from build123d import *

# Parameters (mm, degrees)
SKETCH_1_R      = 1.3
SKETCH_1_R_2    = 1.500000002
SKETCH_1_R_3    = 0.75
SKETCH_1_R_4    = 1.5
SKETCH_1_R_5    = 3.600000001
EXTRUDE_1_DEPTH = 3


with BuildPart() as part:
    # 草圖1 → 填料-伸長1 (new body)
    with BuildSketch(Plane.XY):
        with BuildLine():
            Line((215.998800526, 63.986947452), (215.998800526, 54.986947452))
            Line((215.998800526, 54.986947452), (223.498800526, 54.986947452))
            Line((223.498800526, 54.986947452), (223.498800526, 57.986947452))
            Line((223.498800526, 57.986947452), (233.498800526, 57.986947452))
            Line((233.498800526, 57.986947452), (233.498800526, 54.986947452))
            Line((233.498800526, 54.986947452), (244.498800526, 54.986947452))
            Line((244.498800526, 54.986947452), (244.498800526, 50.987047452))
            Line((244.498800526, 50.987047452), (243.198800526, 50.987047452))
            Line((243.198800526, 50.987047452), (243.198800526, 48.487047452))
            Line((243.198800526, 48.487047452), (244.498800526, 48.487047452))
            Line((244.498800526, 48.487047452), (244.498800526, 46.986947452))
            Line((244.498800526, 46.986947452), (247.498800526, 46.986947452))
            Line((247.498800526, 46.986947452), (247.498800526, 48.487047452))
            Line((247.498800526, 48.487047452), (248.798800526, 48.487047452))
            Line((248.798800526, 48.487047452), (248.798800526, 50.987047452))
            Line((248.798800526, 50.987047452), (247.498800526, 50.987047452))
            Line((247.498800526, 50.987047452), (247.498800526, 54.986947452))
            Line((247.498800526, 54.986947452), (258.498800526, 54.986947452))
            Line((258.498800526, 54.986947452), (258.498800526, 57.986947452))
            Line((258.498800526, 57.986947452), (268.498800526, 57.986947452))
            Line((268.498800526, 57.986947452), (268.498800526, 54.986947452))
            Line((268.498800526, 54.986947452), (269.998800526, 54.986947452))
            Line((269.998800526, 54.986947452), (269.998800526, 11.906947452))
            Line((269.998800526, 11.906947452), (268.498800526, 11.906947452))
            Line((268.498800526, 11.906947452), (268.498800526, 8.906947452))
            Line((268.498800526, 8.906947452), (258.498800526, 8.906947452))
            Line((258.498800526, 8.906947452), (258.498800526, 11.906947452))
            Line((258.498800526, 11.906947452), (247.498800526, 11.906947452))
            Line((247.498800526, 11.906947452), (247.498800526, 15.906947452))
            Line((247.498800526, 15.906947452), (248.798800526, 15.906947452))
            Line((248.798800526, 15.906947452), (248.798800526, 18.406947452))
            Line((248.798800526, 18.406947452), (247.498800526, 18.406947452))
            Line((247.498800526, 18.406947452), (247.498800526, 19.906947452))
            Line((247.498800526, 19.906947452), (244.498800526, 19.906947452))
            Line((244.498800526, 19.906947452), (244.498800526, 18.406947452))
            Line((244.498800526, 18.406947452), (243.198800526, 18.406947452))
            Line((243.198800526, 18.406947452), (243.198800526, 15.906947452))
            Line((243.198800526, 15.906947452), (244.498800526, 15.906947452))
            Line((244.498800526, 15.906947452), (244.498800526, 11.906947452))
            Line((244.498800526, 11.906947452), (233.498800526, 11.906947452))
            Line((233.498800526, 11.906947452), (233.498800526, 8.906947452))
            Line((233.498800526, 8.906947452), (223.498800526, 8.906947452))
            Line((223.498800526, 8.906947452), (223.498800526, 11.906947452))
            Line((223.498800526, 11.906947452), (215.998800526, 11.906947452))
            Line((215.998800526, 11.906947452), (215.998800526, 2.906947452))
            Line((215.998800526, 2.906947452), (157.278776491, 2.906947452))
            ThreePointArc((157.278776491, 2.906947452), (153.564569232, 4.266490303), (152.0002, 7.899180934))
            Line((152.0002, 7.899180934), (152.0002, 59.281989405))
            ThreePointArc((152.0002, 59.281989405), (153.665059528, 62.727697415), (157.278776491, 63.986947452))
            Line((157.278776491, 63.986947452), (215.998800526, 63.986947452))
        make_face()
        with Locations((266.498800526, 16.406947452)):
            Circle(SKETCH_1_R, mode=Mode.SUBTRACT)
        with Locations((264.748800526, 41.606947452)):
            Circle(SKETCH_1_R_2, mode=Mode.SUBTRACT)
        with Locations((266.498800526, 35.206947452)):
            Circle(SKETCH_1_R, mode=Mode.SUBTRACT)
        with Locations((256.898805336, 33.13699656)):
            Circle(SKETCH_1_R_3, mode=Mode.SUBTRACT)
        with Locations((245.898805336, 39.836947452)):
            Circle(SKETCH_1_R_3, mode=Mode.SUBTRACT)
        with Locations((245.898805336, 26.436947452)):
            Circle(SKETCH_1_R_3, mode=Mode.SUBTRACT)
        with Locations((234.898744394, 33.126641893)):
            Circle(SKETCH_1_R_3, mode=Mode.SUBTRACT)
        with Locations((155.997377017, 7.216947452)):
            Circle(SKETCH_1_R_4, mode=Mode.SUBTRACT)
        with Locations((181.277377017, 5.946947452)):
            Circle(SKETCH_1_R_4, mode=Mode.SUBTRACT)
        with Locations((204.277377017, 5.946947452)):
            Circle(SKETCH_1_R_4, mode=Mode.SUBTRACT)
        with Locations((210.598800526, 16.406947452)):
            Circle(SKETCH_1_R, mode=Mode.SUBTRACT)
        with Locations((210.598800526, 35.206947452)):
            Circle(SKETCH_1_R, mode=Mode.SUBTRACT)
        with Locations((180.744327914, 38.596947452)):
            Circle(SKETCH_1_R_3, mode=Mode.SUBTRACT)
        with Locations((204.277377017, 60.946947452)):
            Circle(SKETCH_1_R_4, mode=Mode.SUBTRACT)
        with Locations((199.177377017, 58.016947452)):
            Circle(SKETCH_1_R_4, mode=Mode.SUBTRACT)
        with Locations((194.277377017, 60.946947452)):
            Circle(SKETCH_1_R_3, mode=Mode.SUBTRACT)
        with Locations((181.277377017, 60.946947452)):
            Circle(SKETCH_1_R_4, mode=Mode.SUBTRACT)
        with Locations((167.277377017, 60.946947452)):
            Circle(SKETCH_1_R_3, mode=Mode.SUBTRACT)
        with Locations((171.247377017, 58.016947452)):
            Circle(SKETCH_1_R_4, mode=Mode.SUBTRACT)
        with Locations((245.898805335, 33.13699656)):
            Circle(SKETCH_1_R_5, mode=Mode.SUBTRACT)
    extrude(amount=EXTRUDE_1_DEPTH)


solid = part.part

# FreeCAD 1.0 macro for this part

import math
import FreeCAD as App
import Part
import Sketcher
from FreeCAD import Vector
Q = App.Units.Quantity

doc = App.newDocument("Part")
params = doc.addObject("Spreadsheet::Sheet", "Params")
for row, (alias, value) in enumerate([
    ("sketch1_diameter", "3 mm"),
    ("sketch1_radius", "5 mm"),
    ("sketch1_diameter2", "2.6 mm"),
    ("sketch1_diameter3", "1.5 mm"),
    ("sketch1_diameter4", "7.2 mm"),
    ("pad1_length", "3 mm"),
], start=1):
    params.set(f"A{row}", alias)
    params.set(f"B{row}", "=" + value)
    params.setAlias(f"B{row}", alias)

body = doc.addObject("PartDesign::Body", "Body")

sketch1 = body.newObject("Sketcher::SketchObject", "Sketch")
sketch1.AttachmentSupport = (doc.getObject("XY_Plane"), [""])
sketch1.MapMode = "FlatFace"
sketch1.addGeometry(Part.LineSegment(Vector(216, 55, 0), Vector(216, 64, 0)), False)
sketch1.addGeometry(Part.LineSegment(Vector(216, 64, 0), Vector(157.3, 64, 0)), False)
sketch1.addGeometry(Part.ArcOfCircle(Part.Circle(Vector(157, 59, 0), Vector(0, 0, 1), 5), math.radians(87), math.radians(177)), False)
sketch1.addGeometry(Part.LineSegment(Vector(152, 59.3, 0), Vector(152, 7.9, 0)), False)
sketch1.addGeometry(Part.ArcOfCircle(Part.Circle(Vector(157, 7.9, 0), Vector(0, 0, 1), 5), math.radians(-180), math.radians(-87)), False)
sketch1.addGeometry(Part.LineSegment(Vector(157.3, 2.9, 0), Vector(216, 2.9, 0)), False)
sketch1.addGeometry(Part.LineSegment(Vector(216, 2.9, 0), Vector(216, 11.9, 0)), False)
sketch1.addGeometry(Part.LineSegment(Vector(216, 11.9, 0), Vector(223.5, 11.9, 0)), False)
sketch1.addGeometry(Part.LineSegment(Vector(223.5, 11.9, 0), Vector(223.5, 8.9, 0)), False)
sketch1.addGeometry(Part.LineSegment(Vector(223.5, 8.9, 0), Vector(233.5, 8.9, 0)), False)
sketch1.addGeometry(Part.LineSegment(Vector(233.5, 8.9, 0), Vector(233.5, 11.9, 0)), False)
sketch1.addGeometry(Part.LineSegment(Vector(233.5, 11.9, 0), Vector(244.5, 11.9, 0)), False)
sketch1.addGeometry(Part.LineSegment(Vector(244.5, 11.9, 0), Vector(244.5, 15.9, 0)), False)
sketch1.addGeometry(Part.LineSegment(Vector(244.5, 15.9, 0), Vector(243.2, 15.9, 0)), False)
sketch1.addGeometry(Part.LineSegment(Vector(243.2, 15.9, 0), Vector(243.2, 18.4, 0)), False)
sketch1.addGeometry(Part.LineSegment(Vector(243.2, 18.4, 0), Vector(244.5, 18.4, 0)), False)
sketch1.addGeometry(Part.LineSegment(Vector(244.5, 18.4, 0), Vector(244.5, 19.9, 0)), False)
sketch1.addGeometry(Part.LineSegment(Vector(244.5, 19.9, 0), Vector(247.5, 19.9, 0)), False)
sketch1.addGeometry(Part.LineSegment(Vector(247.5, 19.9, 0), Vector(247.5, 18.4, 0)), False)
sketch1.addGeometry(Part.LineSegment(Vector(247.5, 18.4, 0), Vector(248.8, 18.4, 0)), False)
sketch1.addGeometry(Part.LineSegment(Vector(248.8, 18.4, 0), Vector(248.8, 15.9, 0)), False)
sketch1.addGeometry(Part.LineSegment(Vector(248.8, 15.9, 0), Vector(247.5, 15.9, 0)), False)
sketch1.addGeometry(Part.LineSegment(Vector(247.5, 15.9, 0), Vector(247.5, 11.9, 0)), False)
sketch1.addGeometry(Part.LineSegment(Vector(247.5, 11.9, 0), Vector(258.5, 11.9, 0)), False)
sketch1.addGeometry(Part.LineSegment(Vector(258.5, 11.9, 0), Vector(258.5, 8.9, 0)), False)
sketch1.addGeometry(Part.LineSegment(Vector(258.5, 8.9, 0), Vector(268.5, 8.9, 0)), False)
sketch1.addGeometry(Part.LineSegment(Vector(268.5, 8.9, 0), Vector(268.5, 11.9, 0)), False)
sketch1.addGeometry(Part.LineSegment(Vector(268.5, 11.9, 0), Vector(270, 11.9, 0)), False)
sketch1.addGeometry(Part.LineSegment(Vector(270, 11.9, 0), Vector(270, 55, 0)), False)
sketch1.addGeometry(Part.LineSegment(Vector(270, 55, 0), Vector(268.5, 55, 0)), False)
sketch1.addGeometry(Part.LineSegment(Vector(268.5, 55, 0), Vector(268.5, 58, 0)), False)
sketch1.addGeometry(Part.LineSegment(Vector(268.5, 58, 0), Vector(258.5, 58, 0)), False)
sketch1.addGeometry(Part.LineSegment(Vector(258.5, 58, 0), Vector(258.5, 55, 0)), False)
sketch1.addGeometry(Part.LineSegment(Vector(258.5, 55, 0), Vector(247.5, 55, 0)), False)
sketch1.addGeometry(Part.LineSegment(Vector(247.5, 55, 0), Vector(247.5, 51, 0)), False)
sketch1.addGeometry(Part.LineSegment(Vector(247.5, 51, 0), Vector(248.8, 51, 0)), False)
sketch1.addGeometry(Part.LineSegment(Vector(248.8, 51, 0), Vector(248.8, 48.5, 0)), False)
sketch1.addGeometry(Part.LineSegment(Vector(248.8, 48.5, 0), Vector(247.5, 48.5, 0)), False)
sketch1.addGeometry(Part.LineSegment(Vector(247.5, 48.5, 0), Vector(247.5, 47, 0)), False)
sketch1.addGeometry(Part.LineSegment(Vector(247.5, 47, 0), Vector(244.5, 47, 0)), False)
sketch1.addGeometry(Part.LineSegment(Vector(244.5, 47, 0), Vector(244.5, 48.5, 0)), False)
sketch1.addGeometry(Part.LineSegment(Vector(244.5, 48.5, 0), Vector(243.2, 48.5, 0)), False)
sketch1.addGeometry(Part.LineSegment(Vector(243.2, 48.5, 0), Vector(243.2, 51, 0)), False)
sketch1.addGeometry(Part.LineSegment(Vector(243.2, 51, 0), Vector(244.5, 51, 0)), False)
sketch1.addGeometry(Part.LineSegment(Vector(244.5, 51, 0), Vector(244.5, 55, 0)), False)
sketch1.addGeometry(Part.LineSegment(Vector(244.5, 55, 0), Vector(233.5, 55, 0)), False)
sketch1.addGeometry(Part.LineSegment(Vector(233.5, 55, 0), Vector(233.5, 58, 0)), False)
sketch1.addGeometry(Part.LineSegment(Vector(233.5, 58, 0), Vector(223.5, 58, 0)), False)
sketch1.addGeometry(Part.LineSegment(Vector(223.5, 58, 0), Vector(223.5, 55, 0)), False)
sketch1.addGeometry(Part.LineSegment(Vector(223.5, 55, 0), Vector(216, 55, 0)), False)
sketch1.addGeometry(Part.Circle(Vector(266.5, 16.4, 0), Vector(0, 0, 1), 1.3), False)
sketch1.addGeometry(Part.Circle(Vector(256.9, 33.1, 0), Vector(0, 0, 1), 0.8), False)
sketch1.addGeometry(Part.Circle(Vector(245.9, 26.4, 0), Vector(0, 0, 1), 0.8), False)
sketch1.addGeometry(Part.Circle(Vector(245.9, 33.1, 0), Vector(0, 0, 1), 3.6), False)
sketch1.addGeometry(Part.Circle(Vector(234.9, 33.1, 0), Vector(0, 0, 1), 0.8), False)
sketch1.addGeometry(Part.Circle(Vector(204.3, 5.9, 0), Vector(0, 0, 1), 1.5), False)
sketch1.addGeometry(Part.Circle(Vector(210.6, 16.4, 0), Vector(0, 0, 1), 1.3), False)
sketch1.addGeometry(Part.Circle(Vector(181.3, 5.9, 0), Vector(0, 0, 1), 1.5), False)
sketch1.addGeometry(Part.Circle(Vector(156, 7.2, 0), Vector(0, 0, 1), 1.5), False)
sketch1.addGeometry(Part.Circle(Vector(266.5, 35.2, 0), Vector(0, 0, 1), 1.3), False)
sketch1.addGeometry(Part.Circle(Vector(245.9, 39.8, 0), Vector(0, 0, 1), 0.8), False)
sketch1.addGeometry(Part.Circle(Vector(264.7, 41.6, 0), Vector(0, 0, 1), 1.5), False)
sketch1.addGeometry(Part.Circle(Vector(210.6, 35.2, 0), Vector(0, 0, 1), 1.3), False)
sketch1.addGeometry(Part.Circle(Vector(180.7, 38.6, 0), Vector(0, 0, 1), 0.8), False)
sketch1.addGeometry(Part.Circle(Vector(199.2, 58, 0), Vector(0, 0, 1), 1.5), False)
sketch1.addGeometry(Part.Circle(Vector(204.3, 60.9, 0), Vector(0, 0, 1), 1.5), False)
sketch1.addGeometry(Part.Circle(Vector(194.3, 60.9, 0), Vector(0, 0, 1), 0.8), False)
sketch1.addGeometry(Part.Circle(Vector(171.2, 58, 0), Vector(0, 0, 1), 1.5), False)
sketch1.addGeometry(Part.Circle(Vector(181.3, 60.9, 0), Vector(0, 0, 1), 1.5), False)
sketch1.addGeometry(Part.Circle(Vector(167.3, 60.9, 0), Vector(0, 0, 1), 0.8), False)
sketch1.addConstraint(Sketcher.Constraint("Coincident", 0, 2, 1, 1))
sketch1.addConstraint(Sketcher.Constraint("Coincident", 1, 2, 2, 1))
sketch1.addConstraint(Sketcher.Constraint("Coincident", 2, 2, 3, 1))
sketch1.addConstraint(Sketcher.Constraint("Tangent", 3, 2, 4, 1))
sketch1.addConstraint(Sketcher.Constraint("Coincident", 4, 2, 5, 1))
sketch1.addConstraint(Sketcher.Constraint("Coincident", 5, 2, 6, 1))
sketch1.addConstraint(Sketcher.Constraint("Coincident", 6, 2, 7, 1))
sketch1.addConstraint(Sketcher.Constraint("Coincident", 7, 2, 8, 1))
sketch1.addConstraint(Sketcher.Constraint("Coincident", 8, 2, 9, 1))
sketch1.addConstraint(Sketcher.Constraint("Coincident", 9, 2, 10, 1))
sketch1.addConstraint(Sketcher.Constraint("Coincident", 10, 2, 11, 1))
sketch1.addConstraint(Sketcher.Constraint("Coincident", 11, 2, 12, 1))
sketch1.addConstraint(Sketcher.Constraint("Coincident", 12, 2, 13, 1))
sketch1.addConstraint(Sketcher.Constraint("Coincident", 13, 2, 14, 1))
sketch1.addConstraint(Sketcher.Constraint("Coincident", 14, 2, 15, 1))
sketch1.addConstraint(Sketcher.Constraint("Coincident", 15, 2, 16, 1))
sketch1.addConstraint(Sketcher.Constraint("Coincident", 16, 2, 17, 1))
sketch1.addConstraint(Sketcher.Constraint("Coincident", 17, 2, 18, 1))
sketch1.addConstraint(Sketcher.Constraint("Coincident", 18, 2, 19, 1))
sketch1.addConstraint(Sketcher.Constraint("Coincident", 19, 2, 20, 1))
sketch1.addConstraint(Sketcher.Constraint("Coincident", 20, 2, 21, 1))
sketch1.addConstraint(Sketcher.Constraint("Coincident", 21, 2, 22, 1))
sketch1.addConstraint(Sketcher.Constraint("Coincident", 22, 2, 23, 1))
sketch1.addConstraint(Sketcher.Constraint("Coincident", 23, 2, 24, 1))
sketch1.addConstraint(Sketcher.Constraint("Coincident", 24, 2, 25, 1))
sketch1.addConstraint(Sketcher.Constraint("Coincident", 25, 2, 26, 1))
sketch1.addConstraint(Sketcher.Constraint("Coincident", 26, 2, 27, 1))
sketch1.addConstraint(Sketcher.Constraint("Coincident", 27, 2, 28, 1))
sketch1.addConstraint(Sketcher.Constraint("Coincident", 28, 2, 29, 1))
sketch1.addConstraint(Sketcher.Constraint("Coincident", 29, 2, 30, 1))
sketch1.addConstraint(Sketcher.Constraint("Coincident", 30, 2, 31, 1))
sketch1.addConstraint(Sketcher.Constraint("Coincident", 31, 2, 32, 1))
sketch1.addConstraint(Sketcher.Constraint("Coincident", 32, 2, 33, 1))
sketch1.addConstraint(Sketcher.Constraint("Coincident", 33, 2, 34, 1))
sketch1.addConstraint(Sketcher.Constraint("Coincident", 34, 2, 35, 1))
sketch1.addConstraint(Sketcher.Constraint("Coincident", 35, 2, 36, 1))
sketch1.addConstraint(Sketcher.Constraint("Coincident", 36, 2, 37, 1))
sketch1.addConstraint(Sketcher.Constraint("Coincident", 37, 2, 38, 1))
sketch1.addConstraint(Sketcher.Constraint("Coincident", 38, 2, 39, 1))
sketch1.addConstraint(Sketcher.Constraint("Coincident", 39, 2, 40, 1))
sketch1.addConstraint(Sketcher.Constraint("Coincident", 40, 2, 41, 1))
sketch1.addConstraint(Sketcher.Constraint("Coincident", 41, 2, 42, 1))
sketch1.addConstraint(Sketcher.Constraint("Coincident", 42, 2, 43, 1))
sketch1.addConstraint(Sketcher.Constraint("Coincident", 43, 2, 44, 1))
sketch1.addConstraint(Sketcher.Constraint("Coincident", 44, 2, 45, 1))
sketch1.addConstraint(Sketcher.Constraint("Coincident", 45, 2, 46, 1))
sketch1.addConstraint(Sketcher.Constraint("Coincident", 46, 2, 47, 1))
sketch1.addConstraint(Sketcher.Constraint("Coincident", 47, 2, 48, 1))
sketch1.addConstraint(Sketcher.Constraint("Coincident", 48, 2, 49, 1))
sketch1.addConstraint(Sketcher.Constraint("Coincident", 49, 2, 0, 1))
sketch1.addConstraint(Sketcher.Constraint("Vertical", 0))
sketch1.addConstraint(Sketcher.Constraint("Horizontal", 1))
sketch1.addConstraint(Sketcher.Constraint("Vertical", 3))
sketch1.addConstraint(Sketcher.Constraint("Horizontal", 5))
sketch1.addConstraint(Sketcher.Constraint("Vertical", 6))
sketch1.addConstraint(Sketcher.Constraint("Horizontal", 7))
sketch1.addConstraint(Sketcher.Constraint("Vertical", 8))
sketch1.addConstraint(Sketcher.Constraint("Horizontal", 9))
sketch1.addConstraint(Sketcher.Constraint("Vertical", 10))
sketch1.addConstraint(Sketcher.Constraint("Horizontal", 11))
sketch1.addConstraint(Sketcher.Constraint("Vertical", 12))
sketch1.addConstraint(Sketcher.Constraint("Horizontal", 13))
sketch1.addConstraint(Sketcher.Constraint("Vertical", 14))
sketch1.addConstraint(Sketcher.Constraint("Horizontal", 15))
sketch1.addConstraint(Sketcher.Constraint("Vertical", 16))
sketch1.addConstraint(Sketcher.Constraint("Horizontal", 17))
sketch1.addConstraint(Sketcher.Constraint("Vertical", 18))
sketch1.addConstraint(Sketcher.Constraint("Horizontal", 19))
sketch1.addConstraint(Sketcher.Constraint("Vertical", 20))
sketch1.addConstraint(Sketcher.Constraint("Horizontal", 21))
sketch1.addConstraint(Sketcher.Constraint("Vertical", 22))
sketch1.addConstraint(Sketcher.Constraint("Horizontal", 23))
sketch1.addConstraint(Sketcher.Constraint("Vertical", 24))
sketch1.addConstraint(Sketcher.Constraint("Horizontal", 25))
sketch1.addConstraint(Sketcher.Constraint("Vertical", 26))
sketch1.addConstraint(Sketcher.Constraint("Horizontal", 27))
sketch1.addConstraint(Sketcher.Constraint("Vertical", 28))
sketch1.addConstraint(Sketcher.Constraint("Horizontal", 29))
sketch1.addConstraint(Sketcher.Constraint("Vertical", 30))
sketch1.addConstraint(Sketcher.Constraint("Horizontal", 31))
sketch1.addConstraint(Sketcher.Constraint("Vertical", 32))
sketch1.addConstraint(Sketcher.Constraint("Horizontal", 33))
sketch1.addConstraint(Sketcher.Constraint("Vertical", 34))
sketch1.addConstraint(Sketcher.Constraint("Horizontal", 35))
sketch1.addConstraint(Sketcher.Constraint("Vertical", 36))
sketch1.addConstraint(Sketcher.Constraint("Horizontal", 37))
sketch1.addConstraint(Sketcher.Constraint("Vertical", 38))
sketch1.addConstraint(Sketcher.Constraint("Horizontal", 39))
sketch1.addConstraint(Sketcher.Constraint("Vertical", 40))
sketch1.addConstraint(Sketcher.Constraint("Horizontal", 41))
sketch1.addConstraint(Sketcher.Constraint("Vertical", 42))
sketch1.addConstraint(Sketcher.Constraint("Horizontal", 43))
sketch1.addConstraint(Sketcher.Constraint("Vertical", 44))
sketch1.addConstraint(Sketcher.Constraint("Horizontal", 45))
sketch1.addConstraint(Sketcher.Constraint("Vertical", 46))
sketch1.addConstraint(Sketcher.Constraint("Horizontal", 47))
sketch1.addConstraint(Sketcher.Constraint("Vertical", 48))
sketch1.addConstraint(Sketcher.Constraint("Horizontal", 49))
sketch1.addConstraint(Sketcher.Constraint("Equal", 2, 4))
sketch1.addConstraint(Sketcher.Constraint("Equal", 51, 52))
sketch1.addConstraint(Sketcher.Constraint("Equal", 52, 54))
sketch1.addConstraint(Sketcher.Constraint("Equal", 50, 56))
sketch1.addConstraint(Sketcher.Constraint("Equal", 55, 57))
sketch1.addConstraint(Sketcher.Constraint("Equal", 57, 58))
sketch1.addConstraint(Sketcher.Constraint("Equal", 56, 59))
sketch1.addConstraint(Sketcher.Constraint("Equal", 54, 60))
sketch1.addConstraint(Sketcher.Constraint("Equal", 58, 61))
sketch1.addConstraint(Sketcher.Constraint("Equal", 59, 62))
sketch1.addConstraint(Sketcher.Constraint("Equal", 60, 63))
sketch1.addConstraint(Sketcher.Constraint("Equal", 61, 64))
sketch1.addConstraint(Sketcher.Constraint("Equal", 64, 65))
sketch1.addConstraint(Sketcher.Constraint("Equal", 63, 66))
sketch1.addConstraint(Sketcher.Constraint("Equal", 65, 67))
sketch1.addConstraint(Sketcher.Constraint("Equal", 67, 68))
sketch1.addConstraint(Sketcher.Constraint("Equal", 66, 69))
sketch1.addConstraint(Sketcher.Constraint("Horizontal", 51, 3, 53, 3))
sketch1.addConstraint(Sketcher.Constraint("Horizontal", 50, 3, 56, 3))
sketch1.addConstraint(Sketcher.Constraint("Horizontal", 55, 3, 57, 3))
sketch1.addConstraint(Sketcher.Constraint("Horizontal", 59, 3, 62, 3))
sketch1.addConstraint(Sketcher.Constraint("Horizontal", 65, 3, 66, 3))
sketch1.addConstraint(Sketcher.Constraint("Horizontal", 64, 3, 67, 3))
sketch1.addConstraint(Sketcher.Constraint("Horizontal", 66, 3, 68, 3))
sketch1.addConstraint(Sketcher.Constraint("Horizontal", 68, 3, 69, 3))
sketch1.addConstraint(Sketcher.Constraint("Horizontal", 7, 2, 10, 2))
sketch1.addConstraint(Sketcher.Constraint("Horizontal", 15, 2, 18, 2))
sketch1.addConstraint(Sketcher.Constraint("Horizontal", 13, 2, 20, 2))
sketch1.addConstraint(Sketcher.Constraint("Horizontal", 11, 2, 22, 2))
sketch1.addConstraint(Sketcher.Constraint("Horizontal", 9, 2, 24, 2))
sketch1.addConstraint(Sketcher.Constraint("Horizontal", 23, 2, 26, 2))
sketch1.addConstraint(Sketcher.Constraint("Horizontal", 29, 2, 32, 2))
sketch1.addConstraint(Sketcher.Constraint("Horizontal", 37, 2, 40, 2))
sketch1.addConstraint(Sketcher.Constraint("Horizontal", 35, 2, 42, 2))
sketch1.addConstraint(Sketcher.Constraint("Horizontal", 33, 2, 44, 2))
sketch1.addConstraint(Sketcher.Constraint("Horizontal", 31, 2, 46, 2))
sketch1.addConstraint(Sketcher.Constraint("Horizontal", 45, 2, 48, 2))
sketch1.addConstraint(Sketcher.Constraint("Vertical", 52, 3, 53, 3))
sketch1.addConstraint(Sketcher.Constraint("Vertical", 50, 3, 59, 3))
sketch1.addConstraint(Sketcher.Constraint("Vertical", 53, 3, 60, 3))
sketch1.addConstraint(Sketcher.Constraint("Vertical", 56, 3, 62, 3))
sketch1.addConstraint(Sketcher.Constraint("Vertical", 55, 3, 65, 3))
sketch1.addConstraint(Sketcher.Constraint("Vertical", 57, 3, 68, 3))
sketch1.addConstraint(Sketcher.Constraint("Vertical", 1, 2, 4, 2))
sketch1.addConstraint(Sketcher.Constraint("Vertical", 0, 2, 5, 2))
sketch1.addConstraint(Sketcher.Constraint("Vertical", 12, 2, 15, 2))
sketch1.addConstraint(Sketcher.Constraint("Vertical", 18, 2, 21, 2))
sketch1.addConstraint(Sketcher.Constraint("Vertical", 26, 2, 29, 2))
sketch1.addConstraint(Sketcher.Constraint("Vertical", 24, 2, 31, 2))
sketch1.addConstraint(Sketcher.Constraint("Vertical", 22, 2, 33, 2))
sketch1.addConstraint(Sketcher.Constraint("Vertical", 20, 2, 35, 2))
sketch1.addConstraint(Sketcher.Constraint("Vertical", 34, 2, 37, 2))
sketch1.addConstraint(Sketcher.Constraint("Vertical", 16, 2, 39, 2))
sketch1.addConstraint(Sketcher.Constraint("Vertical", 14, 2, 41, 2))
sketch1.addConstraint(Sketcher.Constraint("Vertical", 40, 2, 43, 2))
sketch1.addConstraint(Sketcher.Constraint("Vertical", 10, 2, 45, 2))
sketch1.addConstraint(Sketcher.Constraint("Vertical", 8, 2, 47, 2))
sketch1.addConstraint(Sketcher.Constraint("Equal", 15, 19))
sketch1.addConstraint(Sketcher.Constraint("Equal", 11, 23))
sketch1.addConstraint(Sketcher.Constraint("Equal", 9, 25))
sketch1.addConstraint(Sketcher.Constraint("Equal", 0, 6))
sketch1.addConstraint(Sketcher.Constraint("Equal", 39, 8))
sketch1.addConstraint(Sketcher.Constraint("Equal", 29, 16))
sketch1.addConstraint(Sketcher.Constraint("Equal", 26, 30))
sketch1.addConstraint(Sketcher.Constraint("Equal", 20, 36))
sketch1.addConstraint(Sketcher.Constraint("Diameter", 55, Q("3 mm")))
sketch1.addConstraint(Sketcher.Constraint("Radius", 2, Q("5 mm")))
sketch1.addConstraint(Sketcher.Constraint("Diameter", 50, Q("2.6 mm")))
sketch1.addConstraint(Sketcher.Constraint("Diameter", 51, Q("1.5 mm")))
sketch1.addConstraint(Sketcher.Constraint("Diameter", 53, Q("7.2 mm")))
sketch1.addConstraint(Sketcher.Constraint("DistanceX", 9, 1, 9, 2, Q("10 mm")))
sketch1.addConstraint(Sketcher.Constraint("DistanceX", 11, 1, 11, 2, Q("11 mm")))
sketch1.addConstraint(Sketcher.Constraint("DistanceX", 17, 1, 17, 2, Q("3 mm")))
sketch1.addConstraint(Sketcher.Constraint("DistanceY", 0, 1, 0, 2, Q("9 mm")))
sketch1.addConstraint(Sketcher.Constraint("DistanceY", 12, 1, 12, 2, Q("4 mm")))
sketch1.addConstraint(Sketcher.Constraint("DistanceX", 7, 1, 7, 2, Q("7.5 mm")))
sketch1.addConstraint(Sketcher.Constraint("DistanceX", 13, 2, 13, 1, Q("1.3 mm")))
sketch1.addConstraint(Sketcher.Constraint("DistanceX", 27, 1, 27, 2, Q("1.5 mm")))
sketch1.addConstraint(Sketcher.Constraint("DistanceY", 14, 1, 14, 2, Q("2.5 mm")))
sketch1.addConstraint(Sketcher.Constraint("DistanceY", 28, 1, 28, 2, Q("43.08 mm")))
sketch1.addConstraint(Sketcher.Constraint("DistanceY", 34, 2, 34, 1, Q("3.9999 mm")))
sketch1.addConstraint(Sketcher.Constraint("DistanceY", 38, 2, 38, 1, Q("1.5001 mm")))
sketch1.addConstraint(Sketcher.Constraint("DistanceY", 3, 2, 3, 1, Q("51.382808 mm")))
sketch1.addConstraint(Sketcher.Constraint("DistanceX", -1, 1, 4, 3, Q("157.0002 mm")))
sketch1.addConstraint(Sketcher.Constraint("DistanceX", -1, 1, 50, 3, Q("266.498801 mm")))
sketch1.addConstraint(Sketcher.Constraint("DistanceX", -1, 1, 56, 3, Q("210.598801 mm")))
sketch1.addConstraint(Sketcher.Constraint("DistanceX", -1, 1, 61, 3, Q("264.748801 mm")))
sketch1.addConstraint(Sketcher.Constraint("DistanceX", -1, 1, 0, 2, Q("215.998801 mm")))
sketch1.addConstraint(Sketcher.Constraint("DistanceX", 1, 2, 1, 1, Q("58.720024 mm")))
sketch1.addConstraint(Sketcher.Constraint("DistanceY", -1, 1, 2, 3, Q("58.99518 mm")))
sketch1.addConstraint(Sketcher.Constraint("DistanceY", -1, 1, 54, 3, Q("33.126642 mm")))
sketch1.addConstraint(Sketcher.Constraint("DistanceY", -1, 1, 50, 3, Q("16.406947 mm")))
sketch1.addConstraint(Sketcher.Constraint("DistanceX", -1, 1, 51, 3, Q("256.898805 mm")))
sketch1.addConstraint(Sketcher.Constraint("DistanceY", -1, 1, 51, 3, Q("33.136997 mm")))
sketch1.addConstraint(Sketcher.Constraint("DistanceX", -1, 1, 52, 3, Q("245.898805 mm")))
sketch1.addConstraint(Sketcher.Constraint("DistanceY", -1, 1, 52, 3, Q("26.436947 mm")))
sketch1.addConstraint(Sketcher.Constraint("DistanceX", -1, 1, 54, 3, Q("234.898744 mm")))
sketch1.addConstraint(Sketcher.Constraint("DistanceX", -1, 1, 55, 3, Q("204.277377 mm")))
sketch1.addConstraint(Sketcher.Constraint("DistanceY", -1, 1, 55, 3, Q("5.946947 mm")))
sketch1.addConstraint(Sketcher.Constraint("DistanceX", -1, 1, 57, 3, Q("181.277377 mm")))
sketch1.addConstraint(Sketcher.Constraint("DistanceX", -1, 1, 58, 3, Q("155.997377 mm")))
sketch1.addConstraint(Sketcher.Constraint("DistanceY", -1, 1, 58, 3, Q("7.216947 mm")))
sketch1.addConstraint(Sketcher.Constraint("DistanceY", -1, 1, 59, 3, Q("35.206947 mm")))
sketch1.addConstraint(Sketcher.Constraint("DistanceY", -1, 1, 60, 3, Q("39.836947 mm")))
sketch1.addConstraint(Sketcher.Constraint("DistanceY", -1, 1, 61, 3, Q("41.606947 mm")))
sketch1.addConstraint(Sketcher.Constraint("DistanceX", -1, 1, 63, 3, Q("180.744328 mm")))
sketch1.addConstraint(Sketcher.Constraint("DistanceY", -1, 1, 63, 3, Q("38.596947 mm")))
sketch1.addConstraint(Sketcher.Constraint("DistanceX", -1, 1, 64, 3, Q("199.177377 mm")))
sketch1.addConstraint(Sketcher.Constraint("DistanceY", -1, 1, 64, 3, Q("58.016947 mm")))
sketch1.addConstraint(Sketcher.Constraint("DistanceY", -1, 1, 65, 3, Q("60.946947 mm")))
sketch1.addConstraint(Sketcher.Constraint("DistanceX", -1, 1, 66, 3, Q("194.277377 mm")))
sketch1.addConstraint(Sketcher.Constraint("DistanceX", -1, 1, 67, 3, Q("171.247377 mm")))
sketch1.addConstraint(Sketcher.Constraint("DistanceX", -1, 1, 69, 3, Q("167.277377 mm")))
sketch1.setExpression("Constraints[163]", "Params.sketch1_diameter")
sketch1.setExpression("Constraints[164]", "Params.sketch1_radius")
sketch1.setExpression("Constraints[165]", "Params.sketch1_diameter2")
sketch1.setExpression("Constraints[166]", "Params.sketch1_diameter3")
sketch1.setExpression("Constraints[167]", "Params.sketch1_diameter4")
pad1 = body.newObject("PartDesign::Pad", "Pad")
pad1.Profile = sketch1
pad1.setExpression("Length", "Params.pad1_length")

doc.recompute()
